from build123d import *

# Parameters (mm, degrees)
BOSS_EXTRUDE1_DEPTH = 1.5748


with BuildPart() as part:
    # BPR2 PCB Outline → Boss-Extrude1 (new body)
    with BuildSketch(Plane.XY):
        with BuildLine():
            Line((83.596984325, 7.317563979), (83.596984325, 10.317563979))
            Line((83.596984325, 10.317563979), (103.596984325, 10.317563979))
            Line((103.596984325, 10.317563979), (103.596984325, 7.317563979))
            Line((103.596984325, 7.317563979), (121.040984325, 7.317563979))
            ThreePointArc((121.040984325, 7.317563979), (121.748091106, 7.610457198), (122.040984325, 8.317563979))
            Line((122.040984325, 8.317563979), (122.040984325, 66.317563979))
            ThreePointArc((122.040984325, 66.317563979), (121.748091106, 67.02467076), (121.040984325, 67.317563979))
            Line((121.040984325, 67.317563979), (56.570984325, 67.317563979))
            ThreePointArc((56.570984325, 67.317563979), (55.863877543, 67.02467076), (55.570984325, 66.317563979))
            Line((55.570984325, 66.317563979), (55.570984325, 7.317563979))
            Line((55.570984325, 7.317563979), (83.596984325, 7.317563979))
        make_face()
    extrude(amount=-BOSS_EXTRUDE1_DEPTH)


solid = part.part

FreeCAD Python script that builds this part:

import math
import FreeCAD as App
import Part
import Sketcher

doc = App.newDocument("Part")
body = doc.addObject("PartDesign::Body", "Body")

# Sketch on XY plane
sketch1 = body.newObject("Sketcher::SketchObject", "Sketch")
sketch1.AttachmentSupport = (doc.getObject("XY_Plane"), [""])
sketch1.MapMode = "FlatFace"
sketch1.addGeometry(Part.LineSegment(App.Vector(83.596984, 7.317564, 0), App.Vector(83.596984, 10.317564, 0)), False)
sketch1.addGeometry(Part.LineSegment(App.Vector(83.596984, 10.317564, 0), App.Vector(103.596984, 10.317564, 0)), False)
sketch1.addGeometry(Part.LineSegment(App.Vector(103.596984, 10.317564, 0), App.Vector(103.596984, 7.317564, 0)), False)
sketch1.addGeometry(Part.LineSegment(App.Vector(103.596984, 7.317564, 0), App.Vector(121.040984, 7.317564, 0)), False)
sketch1.addGeometry(Part.ArcOfCircle(Part.Circle(App.Vector(121.040984, 8.317564, 0), App.Vector(0, 0, 1), 1), math.radians(-90), math.radians(0)), False)
sketch1.addGeometry(Part.LineSegment(App.Vector(122.040984, 8.317564, 0), App.Vector(122.040984, 66.317564, 0)), False)
sketch1.addGeometry(Part.ArcOfCircle(Part.Circle(App.Vector(121.040984, 66.317564, 0), App.Vector(0, 0, 1), 1), math.radians(0), math.radians(90)), False)
sketch1.addGeometry(Part.LineSegment(App.Vector(121.040984, 67.317564, 0), App.Vector(56.570984, 67.317564, 0)), False)
sketch1.addGeometry(Part.ArcOfCircle(Part.Circle(App.Vector(56.570984, 66.317564, 0), App.Vector(0, 0, 1), 1), math.radians(90), math.radians(180)), False)
sketch1.addGeometry(Part.LineSegment(App.Vector(55.570984, 66.317564, 0), App.Vector(55.570984, 7.317564, 0)), False)
sketch1.addGeometry(Part.LineSegment(App.Vector(55.570984, 7.317564, 0), App.Vector(83.596984, 7.317564, 0)), False)
sketch1.addConstraint(Sketcher.Constraint("Coincident", 0, 2, 1, 1))
sketch1.addConstraint(Sketcher.Constraint("Coincident", 1, 2, 2, 1))
sketch1.addConstraint(Sketcher.Constraint("Coincident", 2, 2, 3, 1))
sketch1.addConstraint(Sketcher.Constraint("Tangent", 3, 2, 4, 1))
sketch1.addConstraint(Sketcher.Constraint("Tangent", 4, 2, 5, 1))
sketch1.addConstraint(Sketcher.Constraint("Tangent", 5, 2, 6, 1))
sketch1.addConstraint(Sketcher.Constraint("Tangent", 6, 2, 7, 1))
sketch1.addConstraint(Sketcher.Constraint("Tangent", 7, 2, 8, 1))
sketch1.addConstraint(Sketcher.Constraint("Tangent", 8, 2, 9, 1))
sketch1.addConstraint(Sketcher.Constraint("Coincident", 9, 2, 10, 1))
sketch1.addConstraint(Sketcher.Constraint("Coincident", 10, 2, 0, 1))
sketch1.addConstraint(Sketcher.Constraint("Vertical", 0))
sketch1.addConstraint(Sketcher.Constraint("Horizontal", 1))
sketch1.addConstraint(Sketcher.Constraint("Vertical", 2))
sketch1.addConstraint(Sketcher.Constraint("Horizontal", 3))
sketch1.addConstraint(Sketcher.Constraint("Vertical", 5))
sketch1.addConstraint(Sketcher.Constraint("Horizontal", 7))
sketch1.addConstraint(Sketcher.Constraint("Vertical", 9))
sketch1.addConstraint(Sketcher.Constraint("Horizontal", 10))
sketch1.addConstraint(Sketcher.Constraint("Equal", 4, 6))
sketch1.addConstraint(Sketcher.Constraint("Equal", 6, 8))
sketch1.addConstraint(Sketcher.Constraint("Horizontal", 3, 2, 9, 2))
sketch1.addConstraint(Sketcher.Constraint("Radius", 4, 1.0))
sketch1.addConstraint(Sketcher.Constraint("DistanceX", 1, 1, 1, 2, 20.0))
sketch1.addConstraint(Sketcher.Constraint("DistanceY", 0, 1, 0, 2, 3.0))
sketch1.addConstraint(Sketcher.Constraint("DistanceY", 5, 1, 5, 2, 58.0))
sketch1.addConstraint(Sketcher.Constraint("DistanceX", 7, 2, 7, 1, 64.47))
sketch1.addConstraint(Sketcher.Constraint("DistanceX", 3, 1, 3, 2, 17.444))
sketch1.addConstraint(Sketcher.Constraint("DistanceX", -1, 1, 4, 3, 121.040984))
sketch1.addConstraint(Sketcher.Constraint("DistanceY", -1, 1, 4, 3, 8.317564))
pad1 = body.newObject("PartDesign::Pad", "Pad")
pad1.Profile = sketch1
pad1.Length = 1.5748
pad1.Reversed = True

doc.recompute()
